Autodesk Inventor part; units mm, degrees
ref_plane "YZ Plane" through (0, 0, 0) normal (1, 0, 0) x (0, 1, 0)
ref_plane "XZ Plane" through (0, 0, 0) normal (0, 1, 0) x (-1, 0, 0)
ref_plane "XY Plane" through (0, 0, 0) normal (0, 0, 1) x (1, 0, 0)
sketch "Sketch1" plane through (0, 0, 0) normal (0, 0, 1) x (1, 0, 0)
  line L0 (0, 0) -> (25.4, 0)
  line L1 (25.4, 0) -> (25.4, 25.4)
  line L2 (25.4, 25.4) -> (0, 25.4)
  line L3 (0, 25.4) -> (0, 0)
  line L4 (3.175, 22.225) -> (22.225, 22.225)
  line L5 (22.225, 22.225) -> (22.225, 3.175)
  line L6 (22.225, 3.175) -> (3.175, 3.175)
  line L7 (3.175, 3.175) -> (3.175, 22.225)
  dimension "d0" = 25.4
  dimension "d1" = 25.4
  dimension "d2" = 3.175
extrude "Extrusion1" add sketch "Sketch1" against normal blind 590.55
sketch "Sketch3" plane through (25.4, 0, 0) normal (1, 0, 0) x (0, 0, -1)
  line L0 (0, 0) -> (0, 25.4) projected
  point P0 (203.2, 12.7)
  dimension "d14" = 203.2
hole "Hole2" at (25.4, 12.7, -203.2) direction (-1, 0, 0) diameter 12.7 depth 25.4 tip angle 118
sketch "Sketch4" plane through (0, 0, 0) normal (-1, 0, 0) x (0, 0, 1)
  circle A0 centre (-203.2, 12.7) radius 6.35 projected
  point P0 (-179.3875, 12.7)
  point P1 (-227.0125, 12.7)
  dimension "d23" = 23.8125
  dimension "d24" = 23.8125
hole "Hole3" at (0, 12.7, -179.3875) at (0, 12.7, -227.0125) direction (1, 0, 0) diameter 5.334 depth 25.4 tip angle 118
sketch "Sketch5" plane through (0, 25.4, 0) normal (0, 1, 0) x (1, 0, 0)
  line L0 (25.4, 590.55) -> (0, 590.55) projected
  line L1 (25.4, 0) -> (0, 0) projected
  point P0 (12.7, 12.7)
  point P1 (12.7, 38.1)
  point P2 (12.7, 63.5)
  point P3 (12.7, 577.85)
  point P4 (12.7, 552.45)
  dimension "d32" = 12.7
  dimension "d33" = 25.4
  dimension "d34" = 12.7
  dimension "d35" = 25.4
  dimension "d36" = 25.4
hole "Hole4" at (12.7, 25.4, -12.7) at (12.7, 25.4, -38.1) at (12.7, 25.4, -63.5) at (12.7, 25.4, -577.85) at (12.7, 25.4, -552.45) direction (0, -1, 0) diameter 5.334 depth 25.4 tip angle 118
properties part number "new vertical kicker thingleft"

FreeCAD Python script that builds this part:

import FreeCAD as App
import Part
import Sketcher
from FreeCAD import Vector
Q = App.Units.Quantity

doc = App.newDocument("Part")
params = doc.addObject("Spreadsheet::Sheet", "Params")
for row, (alias, value) in enumerate([
    ("sketch1_width", "1 in"),
    ("pad1_length", "23.25 in"),
    ("sketch2_diameter", "0.5 in"),
    ("hole_diameter", "0.5 in"),
    ("hole_depth", "1 in"),
    ("sketch3_diameter", "0.21 in"),
    ("hole2_diameter", "0.21 in"),
    ("hole2_depth", "1 in"),
    ("sketch4_diameter", "0.21 in"),
    ("hole3_diameter", "0.21 in"),
    ("hole3_depth", "1 in"),
], start=1):
    params.set(f"A{row}", alias)
    params.set(f"B{row}", "=" + value)
    params.setAlias(f"B{row}", alias)

body = doc.addObject("PartDesign::Body", "Body")

sketch1 = doc.addObject("Sketcher::SketchObject", "Sketch")
body.addObject(sketch1)
sketch1.AttachmentSupport = (doc.XY_Plane, [""])
sketch1.MapMode = "FlatFace"
sketch1.addGeometry([
    Part.LineSegment(Vector(0, 25.4, 0), Vector(0, 0, 0)),
    Part.LineSegment(Vector(0, 0, 0), Vector(25.4, 0, 0)),
    Part.LineSegment(Vector(25.4, 0, 0), Vector(25.4, 25.4, 0)),
    Part.LineSegment(Vector(25.4, 25.4, 0), Vector(0, 25.4, 0)),
    Part.LineSegment(Vector(3.175, 3.175, 0), Vector(3.175, 22.225, 0)),
    Part.LineSegment(Vector(3.175, 22.225, 0), Vector(22.225, 22.225, 0)),
    Part.LineSegment(Vector(22.225, 22.225, 0), Vector(22.225, 3.175, 0)),
    Part.LineSegment(Vector(22.225, 3.175, 0), Vector(3.175, 3.175, 0)),
], False)
sketch1.addConstraint([
    Sketcher.Constraint("Coincident", 0, 2, 1, 1),
    Sketcher.Constraint("Coincident", 1, 2, 2, 1),
    Sketcher.Constraint("Coincident", 2, 2, 3, 1),
    Sketcher.Constraint("Coincident", 3, 2, 0, 1),
    Sketcher.Constraint("Coincident", 4, 2, 5, 1),
    Sketcher.Constraint("Coincident", 5, 2, 6, 1),
    Sketcher.Constraint("Coincident", 6, 2, 7, 1),
    Sketcher.Constraint("Coincident", 7, 2, 4, 1),
    Sketcher.Constraint("Vertical", 0),
    Sketcher.Constraint("Horizontal", 1),
    Sketcher.Constraint("Vertical", 2),
    Sketcher.Constraint("Horizontal", 3),
    Sketcher.Constraint("Vertical", 4),
    Sketcher.Constraint("Horizontal", 5),
    Sketcher.Constraint("Vertical", 6),
    Sketcher.Constraint("Horizontal", 7),
    Sketcher.Constraint("Coincident", 0, 2, -1, 1),
    Sketcher.Constraint("Equal", 3, 0),
    Sketcher.Constraint("Equal", 7, 4),
    Sketcher.Constraint("DistanceX", 1, 1, 1, 2, Q("1 in")),
    Sketcher.Constraint("DistanceX", -1, 1, 4, 2, Q("0.125 in")),
    Sketcher.Constraint("DistanceY", -1, 1, 6, 2, Q("0.125 in")),
    Sketcher.Constraint("DistanceY", 4, 2, 3, 2, Q("0.125 in")),
])
sketch1.setExpression("Constraints[19]", "Params.sketch1_width")
pad1 = doc.addObject("PartDesign::Pad", "Pad")
body.addObject(pad1)
pad1.Profile = sketch1
pad1.setExpression("Length", "Params.pad1_length")
pad1.Reversed = True

sketch2 = doc.addObject("Sketcher::SketchObject", "Sketch001")
body.addObject(sketch2)
sketch2.AttachmentSupport = (doc.YZ_Plane, [""])
sketch2.MapMode = "FlatFace"
sketch2.AttachmentOffset = App.Placement(Vector(0, 0, 1 * 25.4), App.Rotation())
sketch2.addGeometry(Part.Circle(Vector(12.7, -203.2, 0), Vector(0, 0, 1), 6.35), False)
sketch2.addConstraint([
    Sketcher.Constraint("Diameter", 0, Q("0.5 in")),
    Sketcher.Constraint("DistanceY", 0, 3, -1, 1, Q("8 in")),
    Sketcher.Constraint("DistanceX", -1, 1, 0, 3, Q("0.5 in")),
])
sketch2.setExpression("Constraints[0]", "Params.sketch2_diameter")
doc.recompute()
hole = doc.addObject("PartDesign::Hole", "Hole")
body.addObject(hole)
hole.Profile = sketch2
hole.ThreadType = "None"
hole.setExpression("Diameter", "Params.hole_diameter")
hole.DepthType = "Dimension"
hole.setExpression("Depth", "Params.hole_depth")
hole.DrillPoint = "Angled"
hole.DrillPointAngle = 118

sketch3 = doc.addObject("Sketcher::SketchObject", "Sketch002")
body.addObject(sketch3)
sketch3.AttachmentSupport = (doc.YZ_Plane, [""])
sketch3.MapMode = "FlatFace"
sketch3.addGeometry([
    Part.Circle(Vector(12.7, -179.3875, 0), Vector(0, 0, 1), 2.667),
    Part.Circle(Vector(12.7, -227.0125, 0), Vector(0, 0, 1), 2.667),
], False)
sketch3.addConstraint([
    Sketcher.Constraint("Equal", 0, 1),
    Sketcher.Constraint("Vertical", 0, 3, 1, 3),
    Sketcher.Constraint("Diameter", 0, Q("0.21 in")),
    Sketcher.Constraint("DistanceX", -1, 1, 0, 3, Q("0.5 in")),
    Sketcher.Constraint("DistanceY", 0, 3, -1, 1, Q("7.0625 in")),
    Sketcher.Constraint("DistanceY", 1, 3, -1, 1, Q("8.9375 in")),
])
sketch3.setExpression("Constraints[2]", "Params.sketch3_diameter")
doc.recompute()
hole2 = doc.addObject("PartDesign::Hole", "Hole001")
body.addObject(hole2)
hole2.Profile = sketch3
hole2.ThreadType = "None"
hole2.setExpression("Diameter", "Params.hole2_diameter")
hole2.DepthType = "Dimension"
hole2.setExpression("Depth", "Params.hole2_depth")
hole2.DrillPoint = "Angled"
hole2.DrillPointAngle = 118
hole2.Reversed = True

sketch4 = doc.addObject("Sketcher::SketchObject", "Sketch003")
body.addObject(sketch4)
sketch4.AttachmentSupport = (doc.XZ_Plane, [""])
sketch4.MapMode = "FlatFace"
sketch4.AttachmentOffset = App.Placement(Vector(0, 0, -1 * 25.4), App.Rotation())
sketch4.addGeometry([
    Part.Circle(Vector(12.7, -12.7, 0), Vector(0, 0, 1), 2.667),
    Part.Circle(Vector(12.7, -38.1, 0), Vector(0, 0, 1), 2.667),
    Part.Circle(Vector(12.7, -63.5, 0), Vector(0, 0, 1), 2.667),
    Part.Circle(Vector(12.7, -577.85, 0), Vector(0, 0, 1), 2.667),
    Part.Circle(Vector(12.7, -552.45, 0), Vector(0, 0, 1), 2.667),
], False)
sketch4.addConstraint([
    Sketcher.Constraint("Equal", 0, 1),
    Sketcher.Constraint("Equal", 1, 2),
    Sketcher.Constraint("Equal", 2, 3),
    Sketcher.Constraint("Equal", 3, 4),
    Sketcher.Constraint("Vertical", 0, 3, 1, 3),
    Sketcher.Constraint("Vertical", 1, 3, 2, 3),
    Sketcher.Constraint("Vertical", 2, 3, 3, 3),
    Sketcher.Constraint("Vertical", 3, 3, 4, 3),
    Sketcher.Constraint("Diameter", 0, Q("0.21 in")),
    Sketcher.Constraint("DistanceY", 1, 3, 0, 3, Q("1 in")),
    Sketcher.Constraint("DistanceY", 2, 3, 1, 3, Q("1 in")),
    Sketcher.Constraint("DistanceY", 3, 3, 4, 3, Q("1 in")),
    Sketcher.Constraint("DistanceX", -1, 1, 0, 3, Q("0.5 in")),
    Sketcher.Constraint("DistanceY", 0, 3, -1, 1, Q("0.5 in")),
    Sketcher.Constraint("DistanceY", 3, 3, -1, 1, Q("22.75 in")),
])
sketch4.setExpression("Constraints[8]", "Params.sketch4_diameter")
doc.recompute()
hole3 = doc.addObject("PartDesign::Hole", "Hole002")
body.addObject(hole3)
hole3.Profile = sketch4
hole3.ThreadType = "None"
hole3.setExpression("Diameter", "Params.hole3_diameter")
hole3.DepthType = "Dimension"
hole3.setExpression("Depth", "Params.hole3_depth")
hole3.DrillPoint = "Angled"
hole3.DrillPointAngle = 118
hole3.Reversed = True

doc.recompute()
